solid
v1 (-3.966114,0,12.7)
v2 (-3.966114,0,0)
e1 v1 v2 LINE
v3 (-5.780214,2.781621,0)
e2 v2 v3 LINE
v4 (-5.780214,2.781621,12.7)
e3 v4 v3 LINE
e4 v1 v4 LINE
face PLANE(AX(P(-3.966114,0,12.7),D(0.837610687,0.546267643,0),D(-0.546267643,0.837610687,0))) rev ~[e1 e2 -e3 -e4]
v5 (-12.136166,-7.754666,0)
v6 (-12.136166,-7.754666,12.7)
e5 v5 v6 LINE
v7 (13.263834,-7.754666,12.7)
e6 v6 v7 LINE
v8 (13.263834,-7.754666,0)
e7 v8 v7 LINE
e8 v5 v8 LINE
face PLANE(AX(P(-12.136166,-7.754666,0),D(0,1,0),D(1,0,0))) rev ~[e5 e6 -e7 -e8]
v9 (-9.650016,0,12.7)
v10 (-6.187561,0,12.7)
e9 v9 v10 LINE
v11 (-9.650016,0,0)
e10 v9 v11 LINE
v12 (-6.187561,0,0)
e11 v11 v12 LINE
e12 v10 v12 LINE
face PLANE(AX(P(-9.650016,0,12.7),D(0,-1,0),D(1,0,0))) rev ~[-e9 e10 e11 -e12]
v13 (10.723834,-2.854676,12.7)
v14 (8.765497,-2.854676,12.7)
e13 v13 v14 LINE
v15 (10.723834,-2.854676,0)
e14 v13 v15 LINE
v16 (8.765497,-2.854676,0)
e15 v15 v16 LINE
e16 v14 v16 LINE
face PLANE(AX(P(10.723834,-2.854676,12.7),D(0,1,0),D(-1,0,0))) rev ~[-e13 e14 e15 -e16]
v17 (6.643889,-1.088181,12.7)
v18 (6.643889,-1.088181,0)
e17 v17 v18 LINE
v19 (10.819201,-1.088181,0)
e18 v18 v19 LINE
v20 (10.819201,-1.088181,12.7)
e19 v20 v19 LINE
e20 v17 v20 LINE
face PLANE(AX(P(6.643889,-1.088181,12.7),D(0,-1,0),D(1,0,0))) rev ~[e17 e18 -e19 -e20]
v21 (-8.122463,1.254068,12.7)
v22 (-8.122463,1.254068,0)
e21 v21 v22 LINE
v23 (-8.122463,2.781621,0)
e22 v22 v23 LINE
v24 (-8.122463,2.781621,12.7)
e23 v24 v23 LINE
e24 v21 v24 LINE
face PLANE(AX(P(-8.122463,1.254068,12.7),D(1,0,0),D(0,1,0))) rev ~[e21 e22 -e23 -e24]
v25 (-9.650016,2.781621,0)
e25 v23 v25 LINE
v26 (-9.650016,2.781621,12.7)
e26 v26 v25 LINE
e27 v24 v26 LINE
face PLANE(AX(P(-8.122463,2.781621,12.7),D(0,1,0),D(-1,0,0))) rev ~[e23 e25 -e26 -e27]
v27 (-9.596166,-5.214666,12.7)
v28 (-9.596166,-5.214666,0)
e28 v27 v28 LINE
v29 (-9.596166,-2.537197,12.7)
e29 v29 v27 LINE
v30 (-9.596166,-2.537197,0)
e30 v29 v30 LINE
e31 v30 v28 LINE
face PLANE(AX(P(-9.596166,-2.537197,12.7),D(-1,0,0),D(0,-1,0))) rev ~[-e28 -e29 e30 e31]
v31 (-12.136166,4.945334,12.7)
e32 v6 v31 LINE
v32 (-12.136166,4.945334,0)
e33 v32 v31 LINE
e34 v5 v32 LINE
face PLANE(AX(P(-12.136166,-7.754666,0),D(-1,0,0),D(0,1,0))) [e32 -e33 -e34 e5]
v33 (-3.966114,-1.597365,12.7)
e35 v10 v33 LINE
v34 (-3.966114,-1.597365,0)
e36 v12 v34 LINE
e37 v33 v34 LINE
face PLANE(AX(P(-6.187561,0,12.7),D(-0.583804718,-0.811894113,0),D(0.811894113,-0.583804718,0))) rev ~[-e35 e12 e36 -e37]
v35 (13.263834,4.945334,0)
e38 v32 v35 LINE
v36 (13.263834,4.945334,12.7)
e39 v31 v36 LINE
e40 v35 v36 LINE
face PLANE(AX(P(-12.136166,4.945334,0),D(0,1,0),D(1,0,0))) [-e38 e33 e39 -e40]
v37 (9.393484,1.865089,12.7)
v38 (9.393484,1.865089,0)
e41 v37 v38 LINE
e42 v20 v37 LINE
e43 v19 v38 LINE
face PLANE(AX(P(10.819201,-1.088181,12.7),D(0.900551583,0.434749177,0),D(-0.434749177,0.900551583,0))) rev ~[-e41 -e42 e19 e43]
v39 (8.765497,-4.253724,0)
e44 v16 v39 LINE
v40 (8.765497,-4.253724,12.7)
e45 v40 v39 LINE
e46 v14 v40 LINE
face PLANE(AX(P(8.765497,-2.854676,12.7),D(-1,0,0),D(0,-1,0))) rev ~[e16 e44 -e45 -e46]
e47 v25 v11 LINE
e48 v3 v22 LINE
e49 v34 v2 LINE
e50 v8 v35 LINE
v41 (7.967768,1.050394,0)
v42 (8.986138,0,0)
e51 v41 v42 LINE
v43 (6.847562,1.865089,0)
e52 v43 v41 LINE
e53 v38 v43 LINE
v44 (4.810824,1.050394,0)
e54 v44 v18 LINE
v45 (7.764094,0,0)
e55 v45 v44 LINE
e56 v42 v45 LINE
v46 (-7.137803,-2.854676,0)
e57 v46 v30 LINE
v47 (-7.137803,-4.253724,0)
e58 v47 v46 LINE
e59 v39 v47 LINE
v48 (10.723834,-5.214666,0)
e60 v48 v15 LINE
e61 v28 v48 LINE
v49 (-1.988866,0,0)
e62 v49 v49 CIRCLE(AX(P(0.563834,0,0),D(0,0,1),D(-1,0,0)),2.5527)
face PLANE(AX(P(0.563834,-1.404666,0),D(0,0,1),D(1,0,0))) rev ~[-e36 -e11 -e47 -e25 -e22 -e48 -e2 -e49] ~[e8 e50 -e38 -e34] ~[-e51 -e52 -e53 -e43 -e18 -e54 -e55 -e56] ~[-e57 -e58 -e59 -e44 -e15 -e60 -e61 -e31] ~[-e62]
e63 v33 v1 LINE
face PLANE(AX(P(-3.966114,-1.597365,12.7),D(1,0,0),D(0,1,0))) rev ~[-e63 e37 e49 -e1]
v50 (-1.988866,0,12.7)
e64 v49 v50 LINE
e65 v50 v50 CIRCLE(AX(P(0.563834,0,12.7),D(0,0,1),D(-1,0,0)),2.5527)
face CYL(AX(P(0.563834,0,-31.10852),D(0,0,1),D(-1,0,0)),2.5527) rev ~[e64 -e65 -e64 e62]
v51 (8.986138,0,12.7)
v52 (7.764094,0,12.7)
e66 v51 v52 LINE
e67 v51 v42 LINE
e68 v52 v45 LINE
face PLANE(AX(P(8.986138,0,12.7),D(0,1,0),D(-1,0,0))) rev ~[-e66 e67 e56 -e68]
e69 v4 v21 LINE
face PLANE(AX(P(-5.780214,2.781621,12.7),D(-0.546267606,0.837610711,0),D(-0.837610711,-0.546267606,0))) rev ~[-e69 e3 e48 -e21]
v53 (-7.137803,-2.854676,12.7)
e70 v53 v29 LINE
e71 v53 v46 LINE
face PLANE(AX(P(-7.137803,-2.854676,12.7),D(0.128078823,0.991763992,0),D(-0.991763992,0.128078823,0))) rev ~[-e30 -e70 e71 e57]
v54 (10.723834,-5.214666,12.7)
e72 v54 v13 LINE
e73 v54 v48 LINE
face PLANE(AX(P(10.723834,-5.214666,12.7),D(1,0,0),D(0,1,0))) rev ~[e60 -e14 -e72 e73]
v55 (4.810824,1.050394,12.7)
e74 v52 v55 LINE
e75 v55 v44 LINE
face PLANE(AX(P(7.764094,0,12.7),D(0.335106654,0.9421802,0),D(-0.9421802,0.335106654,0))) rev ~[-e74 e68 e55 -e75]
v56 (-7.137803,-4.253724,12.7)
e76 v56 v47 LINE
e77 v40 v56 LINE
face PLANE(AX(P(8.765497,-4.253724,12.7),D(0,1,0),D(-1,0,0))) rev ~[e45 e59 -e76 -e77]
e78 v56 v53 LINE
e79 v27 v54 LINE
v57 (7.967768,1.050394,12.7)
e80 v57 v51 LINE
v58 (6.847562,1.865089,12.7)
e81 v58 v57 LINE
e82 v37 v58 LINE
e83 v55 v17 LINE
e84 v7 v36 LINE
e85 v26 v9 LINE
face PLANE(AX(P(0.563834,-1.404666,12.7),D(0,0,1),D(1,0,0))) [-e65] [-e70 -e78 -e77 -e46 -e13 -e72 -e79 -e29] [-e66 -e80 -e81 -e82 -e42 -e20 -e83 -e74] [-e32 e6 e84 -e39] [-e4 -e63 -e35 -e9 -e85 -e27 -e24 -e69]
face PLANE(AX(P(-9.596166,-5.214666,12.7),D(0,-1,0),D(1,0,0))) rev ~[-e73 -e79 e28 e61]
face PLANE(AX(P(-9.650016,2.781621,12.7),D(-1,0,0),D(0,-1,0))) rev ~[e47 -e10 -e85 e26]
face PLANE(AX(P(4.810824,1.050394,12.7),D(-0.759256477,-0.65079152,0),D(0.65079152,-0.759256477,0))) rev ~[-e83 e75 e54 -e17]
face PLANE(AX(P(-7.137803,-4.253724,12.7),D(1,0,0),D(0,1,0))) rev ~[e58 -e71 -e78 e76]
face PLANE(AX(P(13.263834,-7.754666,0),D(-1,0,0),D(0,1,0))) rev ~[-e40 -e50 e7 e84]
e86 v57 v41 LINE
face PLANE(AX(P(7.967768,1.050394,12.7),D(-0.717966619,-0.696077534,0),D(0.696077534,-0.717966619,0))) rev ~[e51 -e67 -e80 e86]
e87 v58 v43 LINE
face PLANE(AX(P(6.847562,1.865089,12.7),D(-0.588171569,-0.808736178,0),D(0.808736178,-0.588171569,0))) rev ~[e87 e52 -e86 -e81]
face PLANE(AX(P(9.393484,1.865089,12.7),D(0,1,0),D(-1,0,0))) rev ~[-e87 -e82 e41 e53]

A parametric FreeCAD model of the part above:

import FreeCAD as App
import Part
import Sketcher

V = App.Vector
Q = App.Units.Quantity


def add_polygon(sketch, points):
    """Adds a closed chain of lines whose ends are joined by coincident constraints."""
    first, n = sketch.GeometryCount, len(points)
    for a, b in zip(points, points[1:] + points[:1]):
        sketch.addGeometry(Part.LineSegment(App.Vector(*a, 0), App.Vector(*b, 0)), False)
    for i in range(n):
        sketch.addConstraint(Sketcher.Constraint("Coincident", first + i, 2, first + (i + 1) % n, 1))

doc = App.newDocument("Part")
body = doc.addObject("PartDesign::Body", "Body")

sketch1 = doc.addObject("Sketcher::SketchObject", "Sketch")
body.addObject(sketch1)
sketch1.AttachmentSupport = (doc.XY_Plane, [""])
sketch1.MapMode = "FlatFace"
add_polygon(sketch1, [(-12, 5), (-12, -8), (13, -8), (13, 5)])
sketch1.addConstraint(Sketcher.Constraint("Vertical", 0))
sketch1.addConstraint(Sketcher.Constraint("Horizontal", 1))
sketch1.addConstraint(Sketcher.Constraint("Vertical", 2))
sketch1.addConstraint(Sketcher.Constraint("Horizontal", 3))
sketch1.addConstraint(Sketcher.Constraint("DistanceX", 1, 1, 1, 2, Q("1 in")))
sketch1.addConstraint(Sketcher.Constraint("DistanceY", 0, 2, 0, 1, Q("0.5 in")))
sketch1.addConstraint(Sketcher.Constraint("DistanceX", 0, 2, -1, 1, Q("12.136166 mm")))
sketch1.addConstraint(Sketcher.Constraint("DistanceY", 0, 2, -1, 1, Q("7.754666 mm")))
pad1 = doc.addObject("PartDesign::Pad", "Pad")
body.addObject(pad1)
pad1.Profile = sketch1
pad1.Length = Q("0.5 in")

sketch2 = doc.addObject("Sketcher::SketchObject", "Sketch001")
body.addObject(sketch2)
sketch2.AttachmentSupport = (doc.XY_Plane, [""])
sketch2.MapMode = "FlatFace"
sketch2.addGeometry(Part.Circle(V(0.6, 0, 0), V(0, 0, 1), 2.6), False)
sketch2.addConstraint(Sketcher.Constraint("PointOnObject", 0, 3, -1))
sketch2.addConstraint(Sketcher.Constraint("Diameter", 0, Q("0.201 in")))
sketch2.addConstraint(Sketcher.Constraint("DistanceX", -1, 1, 0, 3, Q("0.563834 mm")))
doc.recompute()
hole = doc.addObject("PartDesign::Hole", "Hole")
body.addObject(hole)
hole.Profile = sketch2
hole.ThreadType = "None"
hole.Diameter = Q("0.201 in")
hole.DepthType = "ThroughAll"
hole.Reversed = True

sketch3 = doc.addObject("Sketcher::SketchObject", "Sketch002")
body.addObject(sketch3)
sketch3.AttachmentSupport = (doc.XY_Plane, [""])
sketch3.MapMode = "FlatFace"
sketch3.AttachmentOffset = App.Placement(V(0, 0, 0.5 * 25.4), App.Rotation())
add_polygon(sketch3, [(-9.6, -2.5), (-9.6, -5.2), (10.7, -5.2), (10.7, -2.9), (8.8, -2.9), (8.8, -4.3), (-7.1, -4.3), (-7.1, -2.9)])
sketch3.addConstraint(Sketcher.Constraint("Vertical", 0))
sketch3.addConstraint(Sketcher.Constraint("Horizontal", 1))
sketch3.addConstraint(Sketcher.Constraint("Vertical", 2))
sketch3.addConstraint(Sketcher.Constraint("Horizontal", 3))
sketch3.addConstraint(Sketcher.Constraint("Vertical", 4))
sketch3.addConstraint(Sketcher.Constraint("Horizontal", 5))
sketch3.addConstraint(Sketcher.Constraint("Vertical", 6))
sketch3.addConstraint(Sketcher.Constraint("Horizontal", 3, 2, 6, 2))
sketch3.addConstraint(Sketcher.Constraint("DistanceX", 1, 1, 1, 2, Q("0.8 in")))
sketch3.addConstraint(Sketcher.Constraint("DistanceX", 3, 2, 3, 1, Q("0.0770999 in")))
sketch3.addConstraint(Sketcher.Constraint("DistanceX", 5, 2, 5, 1, Q("15.9033 mm")))
sketch3.addConstraint(Sketcher.Constraint("DistanceY", 0, 2, 0, 1, Q("2.677469 mm")))
sketch3.addConstraint(Sketcher.Constraint("DistanceY", 2, 1, 2, 2, Q("2.35999 mm")))
sketch3.addConstraint(Sketcher.Constraint("DistanceY", 4, 2, 4, 1, Q("1.399048 mm")))
sketch3.addConstraint(Sketcher.Constraint("DistanceX", 0, 2, -1, 1, Q("9.596166 mm")))
sketch3.addConstraint(Sketcher.Constraint("DistanceY", 0, 2, -1, 1, Q("5.214666 mm")))
pocket1 = doc.addObject("PartDesign::Pocket", "Pocket")
body.addObject(pocket1)
pocket1.Profile = sketch3
pocket1.Length = Q("1 in")

sketch4 = doc.addObject("Sketcher::SketchObject", "Sketch003")
body.addObject(sketch4)
sketch4.AttachmentSupport = (doc.XY_Plane, [""])
sketch4.MapMode = "FlatFace"
sketch4.AttachmentOffset = App.Placement(V(0, 0, 0.5 * 25.4), App.Rotation())
add_polygon(sketch4, [(-9.7, 2.8), (-9.7, 0), (-6.2, 0), (-4, -1.6), (-4, 0), (-5.8, 2.8), (-8.1, 1.3), (-8.1, 2.8)])
sketch4.addConstraint(Sketcher.Constraint("Vertical", 0))
sketch4.addConstraint(Sketcher.Constraint("Horizontal", 1))
sketch4.addConstraint(Sketcher.Constraint("Vertical", 3))
sketch4.addConstraint(Sketcher.Constraint("Vertical", 6))
sketch4.addConstraint(Sketcher.Constraint("Horizontal", 7))
sketch4.addConstraint(Sketcher.Constraint("PointOnObject", 0, 2, -1))
sketch4.addConstraint(Sketcher.Constraint("PointOnObject", 3, 2, -1))
sketch4.addConstraint(Sketcher.Constraint("Perpendicular", 4, 5))
sketch4.addConstraint(Sketcher.Constraint("Horizontal", 4, 2, 6, 2))
sketch4.addConstraint(Sketcher.Constraint("Equal", 7, 6))
sketch4.addConstraint(Sketcher.Constraint("Distance", 4, Q("3.3209 mm")))
sketch4.addConstraint(Sketcher.Constraint("DistanceY", 0, 2, 0, 1, Q("2.781621 mm")))
sketch4.addConstraint(Sketcher.Constraint("Distance", 2, Q("2.736129 mm")))
sketch4.addConstraint(Sketcher.Constraint("DistanceX", 1, 1, 1, 2, Q("3.462455 mm")))
sketch4.addConstraint(Sketcher.Constraint("DistanceX", 7, 2, 7, 1, Q("1.527553 mm")))
sketch4.addConstraint(Sketcher.Constraint("DistanceX", 1, 2, -1, 1, Q("6.187561 mm")))
pocket2 = doc.addObject("PartDesign::Pocket", "Pocket001")
body.addObject(pocket2)
pocket2.Profile = sketch4
pocket2.Length = Q("1 in")

sketch5 = doc.addObject("Sketcher::SketchObject", "Sketch004")
body.addObject(sketch5)
sketch5.AttachmentSupport = (doc.XY_Plane, [""])
sketch5.MapMode = "FlatFace"
sketch5.AttachmentOffset = App.Placement(V(0, 0, 0.5 * 25.4), App.Rotation())
add_polygon(sketch5, [(9.4, 1.9), (6.8, 1.9), (8, 1.1), (9, 0), (7.8, 0), (4.8, 1.1), (6.6, -1.1), (10.8, -1.1)])
sketch5.addConstraint(Sketcher.Constraint("Horizontal", 0))
sketch5.addConstraint(Sketcher.Constraint("Horizontal", 3))
sketch5.addConstraint(Sketcher.Constraint("Horizontal", 6))
sketch5.addConstraint(Sketcher.Constraint("PointOnObject", 2, 2, -1))
sketch5.addConstraint(Sketcher.Constraint("Horizontal", 1, 2, 4, 2))
sketch5.addConstraint(Sketcher.Constraint("Distance", 7, Q("3.279401 mm")))
sketch5.addConstraint(Sketcher.Constraint("DistanceX", -1, 1, 6, 2, Q("10.819201 mm")))
sketch5.addConstraint(Sketcher.Constraint("Distance", 1, Q("1.385132 mm")))
sketch5.addConstraint(Sketcher.Constraint("Distance", 5, Q("2.81667 mm")))
sketch5.addConstraint(Sketcher.Constraint("DistanceX", 0, 2, 0, 1, Q("2.545922 mm")))
sketch5.addConstraint(Sketcher.Constraint("DistanceX", 3, 2, 3, 1, Q("1.222044 mm")))
sketch5.addConstraint(Sketcher.Constraint("DistanceX", 6, 1, 6, 2, Q("4.175312 mm")))
sketch5.addConstraint(Sketcher.Constraint("DistanceY", -1, 1, 0, 2, Q("1.865089 mm")))
sketch5.addConstraint(Sketcher.Constraint("DistanceX", -1, 1, 1, 2, Q("7.967768 mm")))
sketch5.addConstraint(Sketcher.Constraint("DistanceY", 5, 2, -1, 1, Q("1.088181 mm")))
sketch5.addConstraint(Sketcher.Constraint("DistanceX", 1, 2, 2, 2, Q("1.01837 mm")))
pocket3 = doc.addObject("PartDesign::Pocket", "Pocket002")
body.addObject(pocket3)
pocket3.Profile = sketch5
pocket3.Length = Q("1 in")

doc.recompute()
